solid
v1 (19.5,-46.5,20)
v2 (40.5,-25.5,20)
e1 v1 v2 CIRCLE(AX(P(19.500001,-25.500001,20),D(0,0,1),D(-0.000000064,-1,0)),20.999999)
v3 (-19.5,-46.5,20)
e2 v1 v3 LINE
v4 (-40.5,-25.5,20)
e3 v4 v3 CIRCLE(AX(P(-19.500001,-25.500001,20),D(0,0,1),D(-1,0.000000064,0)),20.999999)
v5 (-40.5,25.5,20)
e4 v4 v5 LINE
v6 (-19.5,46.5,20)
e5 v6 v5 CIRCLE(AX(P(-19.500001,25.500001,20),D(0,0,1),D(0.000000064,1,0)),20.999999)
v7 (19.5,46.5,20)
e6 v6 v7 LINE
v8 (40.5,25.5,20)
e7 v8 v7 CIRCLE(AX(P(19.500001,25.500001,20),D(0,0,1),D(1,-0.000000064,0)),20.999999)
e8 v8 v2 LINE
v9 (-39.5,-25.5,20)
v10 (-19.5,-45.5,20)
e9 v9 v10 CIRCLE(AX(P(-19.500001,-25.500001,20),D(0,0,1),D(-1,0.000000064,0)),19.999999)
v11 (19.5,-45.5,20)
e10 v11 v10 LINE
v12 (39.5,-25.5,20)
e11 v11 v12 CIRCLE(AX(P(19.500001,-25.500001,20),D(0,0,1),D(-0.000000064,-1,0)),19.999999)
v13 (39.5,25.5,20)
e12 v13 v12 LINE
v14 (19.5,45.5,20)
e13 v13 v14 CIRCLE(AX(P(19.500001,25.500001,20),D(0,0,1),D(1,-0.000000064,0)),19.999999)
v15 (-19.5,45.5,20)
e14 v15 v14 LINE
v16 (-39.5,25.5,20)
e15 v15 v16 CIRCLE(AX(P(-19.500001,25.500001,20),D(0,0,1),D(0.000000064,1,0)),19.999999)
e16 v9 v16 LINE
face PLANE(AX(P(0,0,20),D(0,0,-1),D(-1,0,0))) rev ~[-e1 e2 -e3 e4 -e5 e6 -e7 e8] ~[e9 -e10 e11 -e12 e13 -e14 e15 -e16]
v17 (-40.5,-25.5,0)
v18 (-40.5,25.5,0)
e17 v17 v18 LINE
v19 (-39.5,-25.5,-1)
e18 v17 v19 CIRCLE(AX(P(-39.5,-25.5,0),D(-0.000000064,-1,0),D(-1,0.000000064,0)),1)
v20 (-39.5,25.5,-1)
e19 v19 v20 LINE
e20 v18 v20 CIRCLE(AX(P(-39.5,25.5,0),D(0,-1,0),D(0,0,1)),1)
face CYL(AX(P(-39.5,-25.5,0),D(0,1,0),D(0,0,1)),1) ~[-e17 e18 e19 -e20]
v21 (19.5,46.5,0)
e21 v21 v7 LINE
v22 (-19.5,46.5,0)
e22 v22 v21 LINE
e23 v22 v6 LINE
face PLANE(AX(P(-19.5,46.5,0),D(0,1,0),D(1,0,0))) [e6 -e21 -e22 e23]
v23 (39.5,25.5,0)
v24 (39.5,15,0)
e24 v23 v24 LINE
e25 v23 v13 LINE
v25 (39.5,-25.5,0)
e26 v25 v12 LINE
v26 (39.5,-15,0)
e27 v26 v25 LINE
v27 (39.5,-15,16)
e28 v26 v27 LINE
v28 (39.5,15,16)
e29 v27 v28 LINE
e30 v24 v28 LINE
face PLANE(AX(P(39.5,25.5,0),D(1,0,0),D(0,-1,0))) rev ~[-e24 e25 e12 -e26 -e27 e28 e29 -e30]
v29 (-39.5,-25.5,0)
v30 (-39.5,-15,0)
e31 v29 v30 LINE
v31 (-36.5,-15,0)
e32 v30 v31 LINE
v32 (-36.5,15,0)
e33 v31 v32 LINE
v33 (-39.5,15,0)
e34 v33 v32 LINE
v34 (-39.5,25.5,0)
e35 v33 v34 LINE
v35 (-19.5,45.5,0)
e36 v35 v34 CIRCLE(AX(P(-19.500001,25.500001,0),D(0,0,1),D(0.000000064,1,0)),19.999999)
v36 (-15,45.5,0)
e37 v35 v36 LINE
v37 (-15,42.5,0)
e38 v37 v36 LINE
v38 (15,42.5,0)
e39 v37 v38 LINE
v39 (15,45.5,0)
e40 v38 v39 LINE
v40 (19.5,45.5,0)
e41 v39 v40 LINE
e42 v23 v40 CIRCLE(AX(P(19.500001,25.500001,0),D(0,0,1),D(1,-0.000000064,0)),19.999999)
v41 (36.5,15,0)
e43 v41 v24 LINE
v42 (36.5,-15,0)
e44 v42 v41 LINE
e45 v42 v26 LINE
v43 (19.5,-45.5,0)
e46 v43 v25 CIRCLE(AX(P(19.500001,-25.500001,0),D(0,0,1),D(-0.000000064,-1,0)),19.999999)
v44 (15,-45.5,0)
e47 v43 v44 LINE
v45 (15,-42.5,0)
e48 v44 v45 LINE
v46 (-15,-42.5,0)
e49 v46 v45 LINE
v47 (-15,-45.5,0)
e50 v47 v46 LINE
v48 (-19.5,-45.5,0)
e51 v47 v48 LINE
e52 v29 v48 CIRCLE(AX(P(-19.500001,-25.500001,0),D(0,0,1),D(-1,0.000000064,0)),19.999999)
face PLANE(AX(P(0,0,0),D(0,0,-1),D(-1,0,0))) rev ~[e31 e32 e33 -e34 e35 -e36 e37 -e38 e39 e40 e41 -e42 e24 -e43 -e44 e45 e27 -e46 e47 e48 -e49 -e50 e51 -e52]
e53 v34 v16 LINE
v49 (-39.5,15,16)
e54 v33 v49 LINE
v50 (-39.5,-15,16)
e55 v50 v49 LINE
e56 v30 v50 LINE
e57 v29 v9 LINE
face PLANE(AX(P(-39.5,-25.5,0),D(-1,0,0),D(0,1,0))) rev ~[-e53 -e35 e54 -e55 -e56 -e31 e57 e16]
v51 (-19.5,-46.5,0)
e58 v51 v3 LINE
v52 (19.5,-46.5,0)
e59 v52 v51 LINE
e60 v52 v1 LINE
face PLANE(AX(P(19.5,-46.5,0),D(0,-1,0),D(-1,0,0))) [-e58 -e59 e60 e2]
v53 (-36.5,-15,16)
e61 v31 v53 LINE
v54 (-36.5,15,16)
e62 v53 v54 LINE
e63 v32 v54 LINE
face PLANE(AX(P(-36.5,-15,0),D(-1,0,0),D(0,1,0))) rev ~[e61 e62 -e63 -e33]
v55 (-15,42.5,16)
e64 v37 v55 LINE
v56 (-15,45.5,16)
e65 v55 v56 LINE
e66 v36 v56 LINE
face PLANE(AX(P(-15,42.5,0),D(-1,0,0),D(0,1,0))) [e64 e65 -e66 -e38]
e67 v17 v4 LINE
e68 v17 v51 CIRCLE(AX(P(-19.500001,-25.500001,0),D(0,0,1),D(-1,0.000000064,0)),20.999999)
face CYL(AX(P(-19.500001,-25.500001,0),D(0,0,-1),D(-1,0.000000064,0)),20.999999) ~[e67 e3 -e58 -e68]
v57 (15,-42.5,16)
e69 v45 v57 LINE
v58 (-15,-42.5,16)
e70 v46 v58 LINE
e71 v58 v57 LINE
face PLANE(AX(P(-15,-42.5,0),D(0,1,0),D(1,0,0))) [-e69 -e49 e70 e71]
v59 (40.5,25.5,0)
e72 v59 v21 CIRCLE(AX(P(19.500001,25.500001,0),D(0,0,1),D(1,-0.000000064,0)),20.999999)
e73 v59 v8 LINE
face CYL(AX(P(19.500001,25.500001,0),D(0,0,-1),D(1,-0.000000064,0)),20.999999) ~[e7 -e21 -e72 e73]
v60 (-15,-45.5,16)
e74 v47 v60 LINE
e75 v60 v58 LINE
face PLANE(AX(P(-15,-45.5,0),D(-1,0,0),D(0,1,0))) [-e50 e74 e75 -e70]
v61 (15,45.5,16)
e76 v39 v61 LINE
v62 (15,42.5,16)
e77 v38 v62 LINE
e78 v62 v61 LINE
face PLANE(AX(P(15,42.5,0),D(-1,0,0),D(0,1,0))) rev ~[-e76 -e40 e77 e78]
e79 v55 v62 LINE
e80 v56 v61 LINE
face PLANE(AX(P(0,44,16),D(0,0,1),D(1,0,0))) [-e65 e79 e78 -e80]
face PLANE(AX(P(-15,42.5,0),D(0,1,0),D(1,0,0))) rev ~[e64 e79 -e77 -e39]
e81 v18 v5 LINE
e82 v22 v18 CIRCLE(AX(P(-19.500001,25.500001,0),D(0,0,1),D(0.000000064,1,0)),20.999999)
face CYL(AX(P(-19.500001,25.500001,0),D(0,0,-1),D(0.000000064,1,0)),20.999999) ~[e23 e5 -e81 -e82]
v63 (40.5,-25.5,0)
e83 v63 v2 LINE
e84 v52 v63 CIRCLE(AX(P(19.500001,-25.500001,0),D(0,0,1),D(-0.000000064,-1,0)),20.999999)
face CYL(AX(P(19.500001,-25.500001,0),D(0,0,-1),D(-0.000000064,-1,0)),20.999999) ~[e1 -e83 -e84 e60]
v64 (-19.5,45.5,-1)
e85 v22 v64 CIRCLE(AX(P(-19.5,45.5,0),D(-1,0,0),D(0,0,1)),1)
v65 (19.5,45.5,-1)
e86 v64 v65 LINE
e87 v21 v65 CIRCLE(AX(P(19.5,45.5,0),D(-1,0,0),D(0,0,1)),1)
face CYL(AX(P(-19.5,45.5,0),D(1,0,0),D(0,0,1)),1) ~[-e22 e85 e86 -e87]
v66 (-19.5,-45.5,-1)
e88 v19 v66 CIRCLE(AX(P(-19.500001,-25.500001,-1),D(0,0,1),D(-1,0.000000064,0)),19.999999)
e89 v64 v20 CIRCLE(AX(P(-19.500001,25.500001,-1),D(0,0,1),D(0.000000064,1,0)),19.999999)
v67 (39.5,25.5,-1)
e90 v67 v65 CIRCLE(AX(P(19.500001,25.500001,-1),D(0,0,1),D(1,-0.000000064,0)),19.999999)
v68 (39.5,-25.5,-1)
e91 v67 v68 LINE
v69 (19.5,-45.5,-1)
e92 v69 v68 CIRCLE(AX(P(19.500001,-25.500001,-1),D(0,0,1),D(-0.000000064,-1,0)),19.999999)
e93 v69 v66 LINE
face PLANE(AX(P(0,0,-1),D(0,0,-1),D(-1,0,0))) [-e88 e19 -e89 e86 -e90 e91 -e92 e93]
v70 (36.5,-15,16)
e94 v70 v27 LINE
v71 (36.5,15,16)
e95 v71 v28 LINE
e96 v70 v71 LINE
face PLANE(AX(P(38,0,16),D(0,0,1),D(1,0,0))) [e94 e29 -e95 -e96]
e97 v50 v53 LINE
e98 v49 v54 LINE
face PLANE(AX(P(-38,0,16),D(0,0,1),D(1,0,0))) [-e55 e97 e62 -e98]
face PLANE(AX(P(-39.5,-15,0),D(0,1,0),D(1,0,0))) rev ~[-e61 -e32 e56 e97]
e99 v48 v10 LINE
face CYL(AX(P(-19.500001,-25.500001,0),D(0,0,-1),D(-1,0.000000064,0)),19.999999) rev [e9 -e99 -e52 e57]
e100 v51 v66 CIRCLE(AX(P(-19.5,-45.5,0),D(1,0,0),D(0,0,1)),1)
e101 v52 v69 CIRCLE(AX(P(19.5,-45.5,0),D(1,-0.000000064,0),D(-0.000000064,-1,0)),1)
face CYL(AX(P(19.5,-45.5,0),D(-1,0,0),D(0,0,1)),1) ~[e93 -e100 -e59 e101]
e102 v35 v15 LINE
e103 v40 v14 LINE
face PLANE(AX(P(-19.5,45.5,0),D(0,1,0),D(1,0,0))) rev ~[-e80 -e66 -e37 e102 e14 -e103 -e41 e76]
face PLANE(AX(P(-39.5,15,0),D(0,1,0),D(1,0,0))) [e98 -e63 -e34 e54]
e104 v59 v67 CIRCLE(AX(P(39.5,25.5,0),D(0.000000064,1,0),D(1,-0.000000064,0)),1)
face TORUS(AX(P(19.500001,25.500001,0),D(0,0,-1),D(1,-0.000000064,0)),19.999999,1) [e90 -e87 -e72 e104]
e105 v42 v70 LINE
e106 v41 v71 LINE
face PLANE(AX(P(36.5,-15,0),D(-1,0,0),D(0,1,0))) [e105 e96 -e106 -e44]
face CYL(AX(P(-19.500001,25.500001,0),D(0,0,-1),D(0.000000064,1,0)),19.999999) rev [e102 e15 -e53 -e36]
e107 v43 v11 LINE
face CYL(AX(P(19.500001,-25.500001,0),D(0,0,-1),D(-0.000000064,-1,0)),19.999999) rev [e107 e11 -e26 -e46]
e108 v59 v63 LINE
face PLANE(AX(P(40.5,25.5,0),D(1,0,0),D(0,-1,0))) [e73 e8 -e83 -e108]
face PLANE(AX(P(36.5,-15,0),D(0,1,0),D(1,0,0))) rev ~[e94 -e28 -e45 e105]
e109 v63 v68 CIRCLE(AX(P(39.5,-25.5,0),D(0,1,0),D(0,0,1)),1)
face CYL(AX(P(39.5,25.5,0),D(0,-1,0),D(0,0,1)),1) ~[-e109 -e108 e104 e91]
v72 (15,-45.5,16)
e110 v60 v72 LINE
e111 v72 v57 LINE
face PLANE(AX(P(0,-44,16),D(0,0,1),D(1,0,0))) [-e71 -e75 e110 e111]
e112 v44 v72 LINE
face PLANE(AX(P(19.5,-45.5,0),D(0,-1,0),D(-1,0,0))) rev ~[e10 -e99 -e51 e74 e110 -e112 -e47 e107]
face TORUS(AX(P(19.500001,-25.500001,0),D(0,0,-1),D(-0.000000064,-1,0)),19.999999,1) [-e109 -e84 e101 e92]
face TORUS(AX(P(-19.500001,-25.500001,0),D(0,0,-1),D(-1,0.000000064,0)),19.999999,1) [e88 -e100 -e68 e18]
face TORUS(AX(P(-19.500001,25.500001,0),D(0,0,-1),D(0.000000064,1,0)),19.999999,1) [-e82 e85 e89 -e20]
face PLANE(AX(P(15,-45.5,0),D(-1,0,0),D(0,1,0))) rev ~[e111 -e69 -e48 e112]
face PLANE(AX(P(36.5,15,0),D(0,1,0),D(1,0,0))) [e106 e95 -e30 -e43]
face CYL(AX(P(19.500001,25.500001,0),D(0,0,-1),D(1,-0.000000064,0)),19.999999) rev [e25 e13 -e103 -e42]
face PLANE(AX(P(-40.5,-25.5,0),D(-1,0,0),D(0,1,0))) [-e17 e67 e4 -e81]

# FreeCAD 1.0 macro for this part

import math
import FreeCAD as App
import Part
import Sketcher
from FreeCAD import Vector


def faces_at(feature, points):
    """Names of the faces that lie closest to the given points."""
    faces = feature.Shape.Faces
    near = lambda p: min(range(len(faces)), key=lambda i: faces[i].distToShape(Part.Vertex(*p))[0])
    return sorted({f"Face{near(p) + 1}" for p in points})


def add_polygon(sketch, points):
    """Adds a closed chain of lines whose ends are joined by coincident constraints."""
    first, n = sketch.GeometryCount, len(points)
    for a, b in zip(points, points[1:] + points[:1]):
        sketch.addGeometry(Part.LineSegment(App.Vector(*a, 0), App.Vector(*b, 0)), False)
    for i in range(n):
        sketch.addConstraint(Sketcher.Constraint("Coincident", first + i, 2, first + (i + 1) % n, 1))

doc = App.newDocument("Part")
params = doc.addObject("Spreadsheet::Sheet", "Params")
for row, (alias, value) in enumerate([
    ("sketch1_radius", "19.999999 mm"),
    ("sketch1_width", "39 mm"),
    ("sketch1_height", "51 mm"),
    ("pad1_length", "20 mm"),
    ("thickness_wall", "1 mm"),
    ("sketch2_width", "3 mm"),
    ("sketch2_width2", "30 mm"),
    ("pad2_length", "16 mm"),
    ("sketch3_width", "3 mm"),
    ("sketch3_width2", "30 mm"),
    ("pad3_length", "16 mm"),
], start=1):
    params.set(f"A{row}", alias)
    params.set(f"B{row}", "=" + value)
    params.setAlias(f"B{row}", alias)

body = doc.addObject("PartDesign::Body", "Body")

# Sketch on XY plane
sketch1 = doc.addObject("Sketcher::SketchObject", "Sketch")
body.addObject(sketch1)
sketch1.AttachmentSupport = (doc.XY_Plane, [""])
sketch1.MapMode = "FlatFace"
sketch1.addGeometry([
    Part.LineSegment(Vector(20, 46, 0), Vector(-20, 46, 0)),  # 0
    Part.ArcOfCircle(Part.Circle(Vector(-20, 26, 0), Vector(0, 0, 1), 20), math.radians(90), math.radians(180)),  # 1
    Part.LineSegment(Vector(-40, 26, 0), Vector(-40, -26, 0)),  # 2
    Part.ArcOfCircle(Part.Circle(Vector(-20, -26, 0), Vector(0, 0, 1), 20), math.radians(180), math.radians(270)),  # 3
    Part.LineSegment(Vector(-20, -46, 0), Vector(20, -46, 0)),  # 4
    Part.ArcOfCircle(Part.Circle(Vector(20, -26, 0), Vector(0, 0, 1), 20), math.radians(-90), math.radians(0)),  # 5
    Part.LineSegment(Vector(40, -26, 0), Vector(40, 26, 0)),  # 6
    Part.ArcOfCircle(Part.Circle(Vector(20, 26, 0), Vector(0, 0, 1), 20), math.radians(0), math.radians(90)),  # 7
], False)
sketch1.addConstraint([
    Sketcher.Constraint("Tangent", 0, 2, 1, 1),
    Sketcher.Constraint("Tangent", 1, 2, 2, 1),
    Sketcher.Constraint("Tangent", 2, 2, 3, 1),
    Sketcher.Constraint("Tangent", 3, 2, 4, 1),
    Sketcher.Constraint("Tangent", 4, 2, 5, 1),
    Sketcher.Constraint("Tangent", 5, 2, 6, 1),
    Sketcher.Constraint("Tangent", 6, 2, 7, 1),
    Sketcher.Constraint("Tangent", 7, 2, 0, 1),
    Sketcher.Constraint("Horizontal", 0),
    Sketcher.Constraint("Vertical", 2),
    Sketcher.Constraint("Horizontal", 4),
    Sketcher.Constraint("Vertical", 6),
    Sketcher.Constraint("Equal", 1, 3),
    Sketcher.Constraint("Equal", 3, 5),
    Sketcher.Constraint("Equal", 5, 7),
    Sketcher.Constraint("Symmetric", 1, 3, 5, 3, -1, 1),
    Sketcher.Constraint("Radius", 1, 19.999999),
    Sketcher.Constraint("DistanceX", 0, 2, 0, 1, 39.0),
    Sketcher.Constraint("DistanceY", 2, 2, 2, 1, 51.0),
])
sketch1.setExpression("Constraints[16]", "Params.sketch1_radius")
sketch1.setExpression("Constraints[17]", "Params.sketch1_width")
sketch1.setExpression("Constraints[18]", "Params.sketch1_height")
pad1 = doc.addObject("PartDesign::Pad", "Pad")
body.addObject(pad1)
pad1.Profile = sketch1
pad1.setExpression("Length", "Params.pad1_length")
doc.recompute()

thickness = doc.addObject("PartDesign::Thickness", "Thickness")
body.addObject(thickness)
thickness.Base = (pad1, faces_at(pad1, [(0, 0, 20)]))
thickness.setExpression("Value", "Params.thickness_wall")
thickness.Reversed = False
thickness.Join = "Arc"

# Sketch on XY plane
sketch2 = doc.addObject("Sketcher::SketchObject", "Sketch001")
body.addObject(sketch2)
sketch2.AttachmentSupport = (doc.XY_Plane, [""])
sketch2.MapMode = "FlatFace"
add_polygon(sketch2, [(-39.5, 15), (-39.5, -15), (-36.5, -15), (-36.5, 15)])  # lines 0-3
add_polygon(sketch2, [(36.5, 15), (36.5, -15), (39.5, -15), (39.5, 15)])  # lines 4-7
add_polygon(sketch2, [(-15, -42.5), (-15, -45.5), (15, -45.5), (15, -42.5)])  # lines 8-11
add_polygon(sketch2, [(-15, 45.5), (-15, 42.5), (15, 42.5), (15, 45.5)])  # lines 12-15
sketch2.addConstraint([
    Sketcher.Constraint("Vertical", 0),
    Sketcher.Constraint("Horizontal", 1),
    Sketcher.Constraint("Vertical", 2),
    Sketcher.Constraint("Horizontal", 3),
    Sketcher.Constraint("Vertical", 4),
    Sketcher.Constraint("Horizontal", 5),
    Sketcher.Constraint("Vertical", 6),
    Sketcher.Constraint("Horizontal", 7),
    Sketcher.Constraint("Vertical", 8),
    Sketcher.Constraint("Horizontal", 9),
    Sketcher.Constraint("Vertical", 10),
    Sketcher.Constraint("Horizontal", 11),
    Sketcher.Constraint("Vertical", 12),
    Sketcher.Constraint("Horizontal", 13),
    Sketcher.Constraint("Vertical", 14),
    Sketcher.Constraint("Horizontal", 15),
    Sketcher.Constraint("Symmetric", 2, 2, 4, 2, -1, 1),
    Sketcher.Constraint("Symmetric", 0, 2, 6, 2, -1, 1),
    Sketcher.Constraint("Symmetric", 10, 2, 12, 2, -1, 1),
    Sketcher.Constraint("Symmetric", 8, 2, 14, 2, -1, 1),
    Sketcher.Constraint("Horizontal", 1, 2, 4, 2),
    Sketcher.Constraint("Vertical", 11, 2, 12, 2),
    Sketcher.Constraint("Equal", 15, 0),
    Sketcher.Constraint("Equal", 7, 8),
    Sketcher.Constraint("DistanceX", 1, 1, 1, 2, 3.0),
    Sketcher.Constraint("DistanceX", 9, 1, 9, 2, 30.0),
    Sketcher.Constraint("DistanceX", 1, 2, 4, 2, 73.0),
    Sketcher.Constraint("DistanceY", 8, 2, -1, 1, 45.5),
])
sketch2.setExpression("Constraints[40]", "Params.sketch2_width")
sketch2.setExpression("Constraints[41]", "Params.sketch2_width2")
pad2 = doc.addObject("PartDesign::Pad", "Pad001")
body.addObject(pad2)
pad2.Profile = sketch2
pad2.setExpression("Length", "Params.pad2_length")

# Sketch on XY plane
sketch3 = doc.addObject("Sketcher::SketchObject", "Sketch002")
body.addObject(sketch3)
sketch3.AttachmentSupport = (doc.XY_Plane, [""])
sketch3.MapMode = "FlatFace"
add_polygon(sketch3, [(-39.5, 15), (-39.5, -15), (-36.5, -15), (-36.5, 15)])  # lines 0-3
add_polygon(sketch3, [(36.5, 15), (36.5, -15), (39.5, -15), (39.5, 15)])  # lines 4-7
add_polygon(sketch3, [(-15, -42.5), (-15, -45.5), (15, -45.5), (15, -42.5)])  # lines 8-11
add_polygon(sketch3, [(-15, 45.5), (-15, 42.5), (15, 42.5), (15, 45.5)])  # lines 12-15
sketch3.addConstraint([
    Sketcher.Constraint("Vertical", 0),
    Sketcher.Constraint("Horizontal", 1),
    Sketcher.Constraint("Vertical", 2),
    Sketcher.Constraint("Horizontal", 3),
    Sketcher.Constraint("Vertical", 4),
    Sketcher.Constraint("Horizontal", 5),
    Sketcher.Constraint("Vertical", 6),
    Sketcher.Constraint("Horizontal", 7),
    Sketcher.Constraint("Vertical", 8),
    Sketcher.Constraint("Horizontal", 9),
    Sketcher.Constraint("Vertical", 10),
    Sketcher.Constraint("Horizontal", 11),
    Sketcher.Constraint("Vertical", 12),
    Sketcher.Constraint("Horizontal", 13),
    Sketcher.Constraint("Vertical", 14),
    Sketcher.Constraint("Horizontal", 15),
    Sketcher.Constraint("Symmetric", 2, 2, 4, 2, -1, 1),
    Sketcher.Constraint("Symmetric", 0, 2, 6, 2, -1, 1),
    Sketcher.Constraint("Symmetric", 10, 2, 12, 2, -1, 1),
    Sketcher.Constraint("Symmetric", 8, 2, 14, 2, -1, 1),
    Sketcher.Constraint("Horizontal", 1, 2, 4, 2),
    Sketcher.Constraint("Vertical", 11, 2, 12, 2),
    Sketcher.Constraint("Equal", 15, 0),
    Sketcher.Constraint("Equal", 7, 8),
    Sketcher.Constraint("DistanceX", 1, 1, 1, 2, 3.0),
    Sketcher.Constraint("DistanceX", 9, 1, 9, 2, 30.0),
    Sketcher.Constraint("DistanceX", 1, 2, 4, 2, 73.0),
    Sketcher.Constraint("DistanceY", 8, 2, -1, 1, 45.5),
])
sketch3.setExpression("Constraints[40]", "Params.sketch3_width")
sketch3.setExpression("Constraints[41]", "Params.sketch3_width2")
pad3 = doc.addObject("PartDesign::Pad", "Pad002")
body.addObject(pad3)
pad3.Profile = sketch3
pad3.setExpression("Length", "Params.pad3_length")

doc.recompute()
